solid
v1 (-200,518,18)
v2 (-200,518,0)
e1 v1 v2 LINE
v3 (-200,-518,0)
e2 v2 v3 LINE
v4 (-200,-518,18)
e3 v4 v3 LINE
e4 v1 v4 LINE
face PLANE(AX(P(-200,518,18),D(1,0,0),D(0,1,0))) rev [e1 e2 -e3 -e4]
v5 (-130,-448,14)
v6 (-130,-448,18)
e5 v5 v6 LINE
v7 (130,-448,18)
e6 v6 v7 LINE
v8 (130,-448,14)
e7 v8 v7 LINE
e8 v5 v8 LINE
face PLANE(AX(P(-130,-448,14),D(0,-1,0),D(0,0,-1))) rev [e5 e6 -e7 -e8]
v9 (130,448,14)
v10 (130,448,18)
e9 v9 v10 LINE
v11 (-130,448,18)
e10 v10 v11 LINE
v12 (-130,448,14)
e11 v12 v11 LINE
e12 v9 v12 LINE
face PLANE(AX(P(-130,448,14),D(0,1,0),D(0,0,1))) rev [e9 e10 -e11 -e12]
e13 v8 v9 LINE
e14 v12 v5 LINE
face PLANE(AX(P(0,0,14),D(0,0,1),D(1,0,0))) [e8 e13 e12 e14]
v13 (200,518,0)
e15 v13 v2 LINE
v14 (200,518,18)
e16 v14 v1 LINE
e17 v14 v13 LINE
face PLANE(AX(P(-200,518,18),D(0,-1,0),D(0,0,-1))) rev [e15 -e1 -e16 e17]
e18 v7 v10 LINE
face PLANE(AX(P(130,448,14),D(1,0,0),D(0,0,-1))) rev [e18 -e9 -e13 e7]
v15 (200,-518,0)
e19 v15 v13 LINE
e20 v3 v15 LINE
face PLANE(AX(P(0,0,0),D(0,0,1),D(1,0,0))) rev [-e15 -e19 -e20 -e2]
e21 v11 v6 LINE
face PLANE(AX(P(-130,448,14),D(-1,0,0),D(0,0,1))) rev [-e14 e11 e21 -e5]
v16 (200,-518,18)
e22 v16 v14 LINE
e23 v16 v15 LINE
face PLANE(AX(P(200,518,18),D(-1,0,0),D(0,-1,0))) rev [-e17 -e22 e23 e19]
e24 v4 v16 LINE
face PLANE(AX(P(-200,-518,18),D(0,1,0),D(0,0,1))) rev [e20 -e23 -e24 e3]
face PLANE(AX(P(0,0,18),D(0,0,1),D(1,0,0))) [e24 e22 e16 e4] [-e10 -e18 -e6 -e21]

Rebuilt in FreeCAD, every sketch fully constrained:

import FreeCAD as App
import Part
import Sketcher

doc = App.newDocument("Part")
body = doc.addObject("PartDesign::Body", "Body")

# Sketch on XY plane
sketch1 = body.newObject("Sketcher::SketchObject", "Sketch")
sketch1.AttachmentSupport = (doc.getObject("XY_Plane"), [""])
sketch1.MapMode = "FlatFace"
sketch1.addGeometry(Part.LineSegment(App.Vector(-200, 518, 0), App.Vector(-200, -518, 0)), False)
sketch1.addGeometry(Part.LineSegment(App.Vector(-200, -518, 0), App.Vector(200, -518, 0)), False)
sketch1.addGeometry(Part.LineSegment(App.Vector(200, -518, 0), App.Vector(200, 518, 0)), False)
sketch1.addGeometry(Part.LineSegment(App.Vector(200, 518, 0), App.Vector(-200, 518, 0)), False)
sketch1.addConstraint(Sketcher.Constraint("Coincident", 0, 2, 1, 1))
sketch1.addConstraint(Sketcher.Constraint("Coincident", 1, 2, 2, 1))
sketch1.addConstraint(Sketcher.Constraint("Coincident", 2, 2, 3, 1))
sketch1.addConstraint(Sketcher.Constraint("Coincident", 3, 2, 0, 1))
sketch1.addConstraint(Sketcher.Constraint("Vertical", 0))
sketch1.addConstraint(Sketcher.Constraint("Horizontal", 1))
sketch1.addConstraint(Sketcher.Constraint("Vertical", 2))
sketch1.addConstraint(Sketcher.Constraint("Horizontal", 3))
sketch1.addConstraint(Sketcher.Constraint("Symmetric", 0, 2, 2, 2, -1, 1))
sketch1.addConstraint(Sketcher.Constraint("DistanceX", 1, 1, 1, 2, 400.0))
sketch1.addConstraint(Sketcher.Constraint("DistanceY", 0, 2, 0, 1, 1036.0))
pad1 = body.newObject("PartDesign::Pad", "Pad")
pad1.Profile = sketch1
pad1.Length = 18

# Sketch on XY plane
sketch2 = body.newObject("Sketcher::SketchObject", "Sketch001")
sketch2.AttachmentSupport = (doc.getObject("XY_Plane"), [""])
sketch2.MapMode = "FlatFace"
sketch2.AttachmentOffset = App.Placement(App.Vector(0, 0, 18), App.Rotation())
sketch2.addGeometry(Part.LineSegment(App.Vector(-130, 448, 0), App.Vector(-130, -448, 0)), False)
sketch2.addGeometry(Part.LineSegment(App.Vector(-130, -448, 0), App.Vector(130, -448, 0)), False)
sketch2.addGeometry(Part.LineSegment(App.Vector(130, -448, 0), App.Vector(130, 448, 0)), False)
sketch2.addGeometry(Part.LineSegment(App.Vector(130, 448, 0), App.Vector(-130, 448, 0)), False)
sketch2.addConstraint(Sketcher.Constraint("Coincident", 0, 2, 1, 1))
sketch2.addConstraint(Sketcher.Constraint("Coincident", 1, 2, 2, 1))
sketch2.addConstraint(Sketcher.Constraint("Coincident", 2, 2, 3, 1))
sketch2.addConstraint(Sketcher.Constraint("Coincident", 3, 2, 0, 1))
sketch2.addConstraint(Sketcher.Constraint("Vertical", 0))
sketch2.addConstraint(Sketcher.Constraint("Horizontal", 1))
sketch2.addConstraint(Sketcher.Constraint("Vertical", 2))
sketch2.addConstraint(Sketcher.Constraint("Horizontal", 3))
sketch2.addConstraint(Sketcher.Constraint("Symmetric", 0, 2, 2, 2, -1, 1))
sketch2.addConstraint(Sketcher.Constraint("DistanceX", 1, 1, 1, 2, 260.0))
sketch2.addConstraint(Sketcher.Constraint("DistanceY", 0, 2, 0, 1, 896.0))
pocket1 = body.newObject("PartDesign::Pocket", "Pocket")
pocket1.Profile = sketch2
pocket1.Length = 4

doc.recompute()
